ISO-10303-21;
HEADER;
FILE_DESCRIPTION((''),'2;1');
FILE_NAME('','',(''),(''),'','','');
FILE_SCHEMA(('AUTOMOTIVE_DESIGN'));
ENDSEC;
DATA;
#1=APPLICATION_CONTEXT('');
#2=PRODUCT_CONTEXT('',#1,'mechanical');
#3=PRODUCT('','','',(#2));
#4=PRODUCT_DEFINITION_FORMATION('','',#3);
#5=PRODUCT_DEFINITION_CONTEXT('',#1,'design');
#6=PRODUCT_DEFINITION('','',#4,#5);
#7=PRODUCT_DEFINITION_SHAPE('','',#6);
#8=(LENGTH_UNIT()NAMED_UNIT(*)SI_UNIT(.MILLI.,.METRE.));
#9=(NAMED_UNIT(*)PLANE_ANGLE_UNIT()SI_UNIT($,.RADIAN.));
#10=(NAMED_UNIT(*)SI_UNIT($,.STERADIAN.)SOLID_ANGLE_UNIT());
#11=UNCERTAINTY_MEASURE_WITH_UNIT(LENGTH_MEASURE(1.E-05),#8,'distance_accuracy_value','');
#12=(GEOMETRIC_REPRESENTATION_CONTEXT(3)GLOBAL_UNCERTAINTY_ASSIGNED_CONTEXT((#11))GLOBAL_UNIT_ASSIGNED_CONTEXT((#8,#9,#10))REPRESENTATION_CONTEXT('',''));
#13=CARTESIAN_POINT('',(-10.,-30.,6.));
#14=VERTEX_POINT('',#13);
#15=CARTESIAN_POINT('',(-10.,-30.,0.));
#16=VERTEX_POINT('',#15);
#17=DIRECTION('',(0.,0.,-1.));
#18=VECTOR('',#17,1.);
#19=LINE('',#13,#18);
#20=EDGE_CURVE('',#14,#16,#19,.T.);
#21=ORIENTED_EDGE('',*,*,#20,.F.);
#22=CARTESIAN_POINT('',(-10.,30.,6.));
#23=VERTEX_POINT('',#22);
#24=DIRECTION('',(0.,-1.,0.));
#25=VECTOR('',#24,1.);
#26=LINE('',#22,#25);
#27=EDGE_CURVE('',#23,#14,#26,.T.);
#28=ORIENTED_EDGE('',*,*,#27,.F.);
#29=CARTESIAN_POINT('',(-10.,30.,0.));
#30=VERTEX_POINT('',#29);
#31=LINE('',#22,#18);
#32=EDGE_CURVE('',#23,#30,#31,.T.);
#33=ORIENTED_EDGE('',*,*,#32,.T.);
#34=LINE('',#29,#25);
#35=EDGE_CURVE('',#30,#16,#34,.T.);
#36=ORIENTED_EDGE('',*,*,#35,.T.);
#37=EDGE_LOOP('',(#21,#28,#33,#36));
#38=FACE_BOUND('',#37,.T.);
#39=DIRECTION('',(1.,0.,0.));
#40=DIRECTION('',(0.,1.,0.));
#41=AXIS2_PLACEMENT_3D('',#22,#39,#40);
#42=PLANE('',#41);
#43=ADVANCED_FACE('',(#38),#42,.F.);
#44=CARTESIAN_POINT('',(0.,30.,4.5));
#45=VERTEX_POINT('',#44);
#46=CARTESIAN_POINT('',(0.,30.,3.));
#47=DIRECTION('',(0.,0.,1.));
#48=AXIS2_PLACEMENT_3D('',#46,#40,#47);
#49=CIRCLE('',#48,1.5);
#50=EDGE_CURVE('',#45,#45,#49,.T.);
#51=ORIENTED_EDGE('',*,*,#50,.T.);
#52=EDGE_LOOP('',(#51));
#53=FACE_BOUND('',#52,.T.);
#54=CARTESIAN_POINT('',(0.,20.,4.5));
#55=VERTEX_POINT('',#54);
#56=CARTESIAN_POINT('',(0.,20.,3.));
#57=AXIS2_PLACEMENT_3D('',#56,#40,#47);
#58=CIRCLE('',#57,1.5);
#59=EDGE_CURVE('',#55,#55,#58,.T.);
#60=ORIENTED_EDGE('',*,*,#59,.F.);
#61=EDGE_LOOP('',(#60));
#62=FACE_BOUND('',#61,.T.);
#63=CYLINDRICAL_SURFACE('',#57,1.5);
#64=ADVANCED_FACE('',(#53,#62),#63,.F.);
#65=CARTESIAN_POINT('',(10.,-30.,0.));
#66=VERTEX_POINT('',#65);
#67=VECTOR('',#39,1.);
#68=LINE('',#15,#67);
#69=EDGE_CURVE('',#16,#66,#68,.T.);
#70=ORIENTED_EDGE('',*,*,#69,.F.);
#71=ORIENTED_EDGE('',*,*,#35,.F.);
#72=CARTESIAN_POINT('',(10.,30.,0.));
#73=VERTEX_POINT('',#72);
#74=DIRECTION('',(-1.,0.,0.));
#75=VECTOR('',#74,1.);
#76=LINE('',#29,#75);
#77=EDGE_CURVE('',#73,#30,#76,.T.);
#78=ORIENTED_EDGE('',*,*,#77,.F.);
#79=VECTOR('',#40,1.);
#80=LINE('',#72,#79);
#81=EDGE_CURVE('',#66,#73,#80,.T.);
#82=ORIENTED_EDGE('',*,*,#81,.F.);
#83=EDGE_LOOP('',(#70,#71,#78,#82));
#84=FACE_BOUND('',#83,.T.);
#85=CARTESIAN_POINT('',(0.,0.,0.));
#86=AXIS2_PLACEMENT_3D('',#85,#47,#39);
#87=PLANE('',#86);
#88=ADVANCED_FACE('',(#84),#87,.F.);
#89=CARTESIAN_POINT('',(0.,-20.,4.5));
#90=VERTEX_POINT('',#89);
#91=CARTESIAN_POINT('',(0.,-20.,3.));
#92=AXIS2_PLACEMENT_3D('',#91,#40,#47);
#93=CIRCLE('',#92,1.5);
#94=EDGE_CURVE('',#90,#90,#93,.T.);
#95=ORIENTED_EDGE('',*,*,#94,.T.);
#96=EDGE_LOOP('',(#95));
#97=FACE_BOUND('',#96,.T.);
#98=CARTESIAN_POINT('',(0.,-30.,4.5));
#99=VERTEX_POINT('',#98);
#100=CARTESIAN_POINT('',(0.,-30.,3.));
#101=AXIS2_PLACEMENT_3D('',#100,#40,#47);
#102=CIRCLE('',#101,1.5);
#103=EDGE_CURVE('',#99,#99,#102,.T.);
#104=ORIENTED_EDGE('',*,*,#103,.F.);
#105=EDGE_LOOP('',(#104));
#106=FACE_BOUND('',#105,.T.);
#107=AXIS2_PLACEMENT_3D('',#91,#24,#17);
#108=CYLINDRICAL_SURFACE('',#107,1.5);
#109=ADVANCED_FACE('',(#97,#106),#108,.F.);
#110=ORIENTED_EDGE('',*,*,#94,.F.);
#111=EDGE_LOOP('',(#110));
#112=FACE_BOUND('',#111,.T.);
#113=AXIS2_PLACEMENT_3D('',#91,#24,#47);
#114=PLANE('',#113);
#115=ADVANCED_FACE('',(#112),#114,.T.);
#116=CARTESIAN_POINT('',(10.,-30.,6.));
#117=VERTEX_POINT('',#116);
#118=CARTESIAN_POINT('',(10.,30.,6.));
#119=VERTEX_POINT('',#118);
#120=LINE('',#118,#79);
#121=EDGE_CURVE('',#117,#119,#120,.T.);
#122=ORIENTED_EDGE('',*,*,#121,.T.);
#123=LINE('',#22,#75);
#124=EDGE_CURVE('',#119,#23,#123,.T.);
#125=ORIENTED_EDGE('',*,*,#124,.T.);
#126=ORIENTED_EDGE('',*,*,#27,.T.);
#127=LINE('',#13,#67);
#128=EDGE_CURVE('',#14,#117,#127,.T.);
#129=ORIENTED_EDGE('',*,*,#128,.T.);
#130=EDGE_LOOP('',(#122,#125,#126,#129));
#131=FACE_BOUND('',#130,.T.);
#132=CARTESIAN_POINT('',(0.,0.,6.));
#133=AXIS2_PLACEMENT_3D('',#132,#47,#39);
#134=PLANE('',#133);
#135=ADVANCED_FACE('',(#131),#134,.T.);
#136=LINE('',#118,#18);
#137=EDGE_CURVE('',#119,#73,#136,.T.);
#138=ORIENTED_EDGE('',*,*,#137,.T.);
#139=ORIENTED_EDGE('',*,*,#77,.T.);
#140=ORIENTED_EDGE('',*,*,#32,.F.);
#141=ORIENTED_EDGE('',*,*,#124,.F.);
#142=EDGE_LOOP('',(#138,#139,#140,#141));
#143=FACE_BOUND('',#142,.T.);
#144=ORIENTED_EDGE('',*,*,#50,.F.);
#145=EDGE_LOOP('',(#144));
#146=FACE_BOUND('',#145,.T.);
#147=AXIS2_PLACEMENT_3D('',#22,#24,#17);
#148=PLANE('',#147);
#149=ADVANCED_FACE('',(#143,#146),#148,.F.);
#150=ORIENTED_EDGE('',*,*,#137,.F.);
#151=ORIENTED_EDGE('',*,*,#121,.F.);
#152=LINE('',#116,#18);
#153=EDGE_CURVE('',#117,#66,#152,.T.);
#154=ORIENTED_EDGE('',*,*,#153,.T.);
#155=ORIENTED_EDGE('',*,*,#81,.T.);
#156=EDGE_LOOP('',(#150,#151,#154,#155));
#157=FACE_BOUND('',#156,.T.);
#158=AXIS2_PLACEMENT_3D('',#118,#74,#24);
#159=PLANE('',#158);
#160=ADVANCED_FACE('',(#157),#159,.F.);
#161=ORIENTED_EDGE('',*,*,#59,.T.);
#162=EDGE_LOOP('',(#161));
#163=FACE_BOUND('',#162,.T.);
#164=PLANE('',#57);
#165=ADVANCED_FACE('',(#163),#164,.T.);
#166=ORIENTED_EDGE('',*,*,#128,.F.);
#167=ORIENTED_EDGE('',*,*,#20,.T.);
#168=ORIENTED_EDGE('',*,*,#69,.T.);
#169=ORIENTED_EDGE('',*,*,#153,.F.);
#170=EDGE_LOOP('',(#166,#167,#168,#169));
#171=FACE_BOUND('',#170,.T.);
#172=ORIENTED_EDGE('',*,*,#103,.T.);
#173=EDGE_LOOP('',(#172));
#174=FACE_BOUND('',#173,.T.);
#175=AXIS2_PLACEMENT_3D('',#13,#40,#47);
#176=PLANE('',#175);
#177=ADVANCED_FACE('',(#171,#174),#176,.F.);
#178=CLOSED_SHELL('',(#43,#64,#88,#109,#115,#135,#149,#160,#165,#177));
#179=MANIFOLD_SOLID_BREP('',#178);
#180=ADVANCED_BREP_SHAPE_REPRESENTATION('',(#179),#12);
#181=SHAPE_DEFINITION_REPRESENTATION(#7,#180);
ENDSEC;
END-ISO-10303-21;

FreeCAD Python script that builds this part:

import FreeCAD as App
import Part
import Sketcher
Q = App.Units.Quantity

doc = App.newDocument("Part")
body = doc.addObject("PartDesign::Body", "Body")

# Sketch on XY plane
sketch1 = doc.addObject("Sketcher::SketchObject", "Sketch")
body.addObject(sketch1)
sketch1.AttachmentSupport = (doc.XY_Plane, [""])
sketch1.MapMode = "FlatFace"
sketch1.addGeometry([
    Part.LineSegment(App.Vector(-10, 30, 0), App.Vector(-10, -30, 0)),
    Part.LineSegment(App.Vector(-10, -30, 0), App.Vector(10, -30, 0)),
    Part.LineSegment(App.Vector(10, -30, 0), App.Vector(10, 30, 0)),
    Part.LineSegment(App.Vector(10, 30, 0), App.Vector(-10, 30, 0)),
], False)
sketch1.addConstraint([
    Sketcher.Constraint("Coincident", 0, 2, 1, 1),
    Sketcher.Constraint("Coincident", 1, 2, 2, 1),
    Sketcher.Constraint("Coincident", 2, 2, 3, 1),
    Sketcher.Constraint("Coincident", 3, 2, 0, 1),
    Sketcher.Constraint("Vertical", 0),
    Sketcher.Constraint("Horizontal", 1),
    Sketcher.Constraint("Vertical", 2),
    Sketcher.Constraint("Horizontal", 3),
    Sketcher.Constraint("Symmetric", 0, 2, 2, 2, -1, 1),
    Sketcher.Constraint("DistanceX", 1, 1, 1, 2, Q("20 mm")),
    Sketcher.Constraint("DistanceY", 0, 2, 0, 1, Q("60 mm")),
])
pad1 = doc.addObject("PartDesign::Pad", "Pad")
body.addObject(pad1)
pad1.Profile = sketch1
pad1.Length = 6

# Sketch on XZ plane
sketch2 = doc.addObject("Sketcher::SketchObject", "Sketch001")
body.addObject(sketch2)
sketch2.AttachmentSupport = (doc.XZ_Plane, [""])
sketch2.MapMode = "FlatFace"
sketch2.AttachmentOffset = App.Placement(App.Vector(0, 0, -30), App.Rotation())
sketch2.addGeometry(Part.Circle(App.Vector(0, 3, 0), App.Vector(0, 0, 1), 1.5), False)
sketch2.addConstraint([
    Sketcher.Constraint("PointOnObject", 0, 3, -2),
    Sketcher.Constraint("Diameter", 0, Q("3 mm")),
    Sketcher.Constraint("DistanceY", -1, 1, 0, 3, Q("3 mm")),
])
pocket1 = doc.addObject("PartDesign::Pocket", "Pocket")
body.addObject(pocket1)
pocket1.Profile = sketch2
pocket1.Length = 10
pocket1.Reversed = True
doc.recompute()

mirrored = doc.addObject("PartDesign::Mirrored", "Mirrored")
body.addObject(mirrored)
mirrored.Originals = [pocket1]
mirrored.MirrorPlane = (doc.XZ_Plane, [""])
body.Tip = mirrored

doc.recompute()
